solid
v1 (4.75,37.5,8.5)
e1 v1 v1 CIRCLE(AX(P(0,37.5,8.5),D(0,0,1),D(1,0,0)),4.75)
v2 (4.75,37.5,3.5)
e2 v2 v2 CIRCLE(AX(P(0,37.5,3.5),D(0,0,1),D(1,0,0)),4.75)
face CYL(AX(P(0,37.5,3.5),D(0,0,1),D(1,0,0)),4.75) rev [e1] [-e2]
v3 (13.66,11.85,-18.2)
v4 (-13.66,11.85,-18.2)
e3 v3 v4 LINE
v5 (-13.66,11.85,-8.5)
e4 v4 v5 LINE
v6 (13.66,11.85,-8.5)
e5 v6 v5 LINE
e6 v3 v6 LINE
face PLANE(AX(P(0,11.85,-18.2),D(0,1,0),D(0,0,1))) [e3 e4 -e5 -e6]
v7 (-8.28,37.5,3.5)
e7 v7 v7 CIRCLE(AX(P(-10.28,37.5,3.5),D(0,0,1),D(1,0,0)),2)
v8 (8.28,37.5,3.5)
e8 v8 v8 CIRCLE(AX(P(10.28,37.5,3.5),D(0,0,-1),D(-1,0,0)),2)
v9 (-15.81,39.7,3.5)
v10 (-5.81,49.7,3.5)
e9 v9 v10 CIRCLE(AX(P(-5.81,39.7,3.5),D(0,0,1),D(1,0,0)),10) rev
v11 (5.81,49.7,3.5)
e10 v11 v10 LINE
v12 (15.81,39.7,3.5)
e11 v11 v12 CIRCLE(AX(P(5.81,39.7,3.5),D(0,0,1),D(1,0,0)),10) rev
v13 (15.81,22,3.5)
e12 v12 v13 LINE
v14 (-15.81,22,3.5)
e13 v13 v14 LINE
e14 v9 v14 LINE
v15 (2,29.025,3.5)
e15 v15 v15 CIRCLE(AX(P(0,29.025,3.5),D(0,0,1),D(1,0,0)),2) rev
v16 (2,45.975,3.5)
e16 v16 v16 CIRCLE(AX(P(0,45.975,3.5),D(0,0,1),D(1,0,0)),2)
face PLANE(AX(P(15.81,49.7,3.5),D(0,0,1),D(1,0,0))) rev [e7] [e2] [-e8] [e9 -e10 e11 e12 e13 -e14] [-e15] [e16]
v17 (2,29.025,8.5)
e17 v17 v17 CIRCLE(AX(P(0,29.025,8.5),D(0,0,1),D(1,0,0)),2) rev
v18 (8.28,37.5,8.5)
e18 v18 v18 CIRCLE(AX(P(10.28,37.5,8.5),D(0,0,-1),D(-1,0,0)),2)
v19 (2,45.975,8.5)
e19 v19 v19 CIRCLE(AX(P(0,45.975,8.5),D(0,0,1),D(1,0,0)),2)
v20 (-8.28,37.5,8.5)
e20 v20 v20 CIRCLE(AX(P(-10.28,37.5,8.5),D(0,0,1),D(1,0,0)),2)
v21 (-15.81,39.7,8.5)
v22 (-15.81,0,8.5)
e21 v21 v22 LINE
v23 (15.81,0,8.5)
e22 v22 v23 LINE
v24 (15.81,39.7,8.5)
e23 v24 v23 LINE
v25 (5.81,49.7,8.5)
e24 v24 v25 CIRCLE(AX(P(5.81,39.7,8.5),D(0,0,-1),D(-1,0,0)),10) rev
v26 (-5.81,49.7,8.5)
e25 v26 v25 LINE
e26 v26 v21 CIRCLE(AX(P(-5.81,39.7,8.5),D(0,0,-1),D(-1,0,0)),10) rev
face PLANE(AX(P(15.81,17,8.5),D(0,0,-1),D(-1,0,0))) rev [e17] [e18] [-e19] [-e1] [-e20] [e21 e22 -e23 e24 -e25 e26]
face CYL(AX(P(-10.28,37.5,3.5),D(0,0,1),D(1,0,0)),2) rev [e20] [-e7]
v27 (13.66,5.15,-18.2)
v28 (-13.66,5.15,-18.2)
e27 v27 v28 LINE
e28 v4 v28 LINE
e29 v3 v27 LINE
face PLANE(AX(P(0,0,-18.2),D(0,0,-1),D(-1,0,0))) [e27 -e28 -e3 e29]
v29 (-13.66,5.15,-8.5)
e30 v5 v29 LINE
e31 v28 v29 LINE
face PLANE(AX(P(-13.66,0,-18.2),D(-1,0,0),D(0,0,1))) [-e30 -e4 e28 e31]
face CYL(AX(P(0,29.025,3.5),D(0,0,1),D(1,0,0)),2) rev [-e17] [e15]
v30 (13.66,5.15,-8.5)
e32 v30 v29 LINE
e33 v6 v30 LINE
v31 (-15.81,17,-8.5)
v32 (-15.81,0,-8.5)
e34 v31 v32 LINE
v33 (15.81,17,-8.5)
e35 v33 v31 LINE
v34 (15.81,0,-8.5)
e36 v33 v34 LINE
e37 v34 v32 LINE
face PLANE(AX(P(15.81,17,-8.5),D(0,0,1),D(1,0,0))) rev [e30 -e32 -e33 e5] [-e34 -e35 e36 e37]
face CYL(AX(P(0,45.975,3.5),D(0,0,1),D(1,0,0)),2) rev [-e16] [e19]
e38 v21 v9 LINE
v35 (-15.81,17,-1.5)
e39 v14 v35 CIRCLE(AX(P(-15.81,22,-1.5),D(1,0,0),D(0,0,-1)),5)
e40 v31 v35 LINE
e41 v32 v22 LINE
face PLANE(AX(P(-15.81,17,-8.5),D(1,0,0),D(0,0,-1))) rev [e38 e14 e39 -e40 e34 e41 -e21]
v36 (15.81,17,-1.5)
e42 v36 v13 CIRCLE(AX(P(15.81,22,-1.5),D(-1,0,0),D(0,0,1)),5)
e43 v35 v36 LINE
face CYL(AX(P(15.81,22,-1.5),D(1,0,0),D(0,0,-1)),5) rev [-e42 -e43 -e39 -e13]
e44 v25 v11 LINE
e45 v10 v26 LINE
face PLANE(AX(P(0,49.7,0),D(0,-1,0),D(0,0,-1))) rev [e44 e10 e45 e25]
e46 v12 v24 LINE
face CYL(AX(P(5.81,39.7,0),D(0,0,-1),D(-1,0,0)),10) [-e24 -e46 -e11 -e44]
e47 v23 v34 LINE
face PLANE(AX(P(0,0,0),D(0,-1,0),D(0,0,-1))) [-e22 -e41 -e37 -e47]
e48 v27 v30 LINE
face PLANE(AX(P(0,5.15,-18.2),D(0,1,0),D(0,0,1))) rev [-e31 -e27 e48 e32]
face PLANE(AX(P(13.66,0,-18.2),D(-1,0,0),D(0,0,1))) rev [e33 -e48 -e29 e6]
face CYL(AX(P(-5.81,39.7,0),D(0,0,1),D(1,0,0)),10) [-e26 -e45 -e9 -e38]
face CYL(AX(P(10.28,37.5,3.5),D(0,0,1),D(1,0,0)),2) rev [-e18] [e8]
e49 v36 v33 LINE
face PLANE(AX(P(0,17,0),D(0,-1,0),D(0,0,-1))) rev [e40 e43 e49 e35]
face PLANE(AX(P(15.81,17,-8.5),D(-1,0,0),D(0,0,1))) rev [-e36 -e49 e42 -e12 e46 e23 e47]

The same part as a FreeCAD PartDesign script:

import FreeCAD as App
import Part
import Sketcher


def edges_at(feature, points):
    """Names of the edges that pass closest to the given points."""
    edges = feature.Shape.Edges
    near = lambda p: min(range(len(edges)), key=lambda i: edges[i].distToShape(Part.Vertex(*p))[0])
    return sorted({f"Edge{near(p) + 1}" for p in points})


def add_polygon(sketch, points):
    """Adds a closed chain of lines whose ends are joined by coincident constraints."""
    first, n = sketch.GeometryCount, len(points)
    for a, b in zip(points, points[1:] + points[:1]):
        sketch.addGeometry(Part.LineSegment(App.Vector(*a, 0), App.Vector(*b, 0)), False)
    for i in range(n):
        sketch.addConstraint(Sketcher.Constraint("Coincident", first + i, 2, first + (i + 1) % n, 1))

doc = App.newDocument("Part")
body = doc.addObject("PartDesign::Body", "Body")

sketch1 = body.newObject("Sketcher::SketchObject", "Sketch")
sketch1.AttachmentSupport = (doc.getObject("XZ_Plane"), [""])
sketch1.MapMode = "FlatFace"
add_polygon(sketch1, [(-15.81, -8.5), (-15.81, 8.5), (15.81, 8.5), (15.81, -8.5)])
sketch1.addConstraint(Sketcher.Constraint("Vertical", 0))
sketch1.addConstraint(Sketcher.Constraint("Horizontal", 1))
sketch1.addConstraint(Sketcher.Constraint("Vertical", 2))
sketch1.addConstraint(Sketcher.Constraint("Horizontal", 3))
sketch1.addConstraint(Sketcher.Constraint("Symmetric", 0, 2, 2, 2, -1, 1))
sketch1.addConstraint(Sketcher.Constraint("DistanceY", 0, 1, 0, 2, 17.0))
sketch1.addConstraint(Sketcher.Constraint("DistanceX", 1, 1, 1, 2, 31.62))
pad1 = body.newObject("PartDesign::Pad", "Pad")
pad1.Profile = sketch1
pad1.Length = 17
pad1.Reversed = True

sketch2 = body.newObject("Sketcher::SketchObject", "Sketch001")
sketch2.AttachmentSupport = (doc.getObject("XY_Plane"), [""])
sketch2.MapMode = "FlatFace"
sketch2.AttachmentOffset = App.Placement(App.Vector(0, 0, -8.5), App.Rotation())
add_polygon(sketch2, [(13.66, 11.85), (13.66, 5.15), (-13.66, 5.15), (-13.66, 11.85)])
sketch2.addConstraint(Sketcher.Constraint("Vertical", 0))
sketch2.addConstraint(Sketcher.Constraint("Horizontal", 1))
sketch2.addConstraint(Sketcher.Constraint("Vertical", 2))
sketch2.addConstraint(Sketcher.Constraint("Horizontal", 3))
sketch2.addConstraint(Sketcher.Constraint("DistanceY", 0, 2, 0, 1, 6.7))
sketch2.addConstraint(Sketcher.Constraint("DistanceX", 1, 2, 1, 1, 27.32))
sketch2.addConstraint(Sketcher.Constraint("DistanceX", -1, 1, 0, 2, 13.66))
sketch2.addConstraint(Sketcher.Constraint("DistanceY", -1, 1, 0, 2, 5.15))
pad2 = body.newObject("PartDesign::Pad", "Pad001")
pad2.Profile = sketch2
pad2.Length = 9.7
pad2.Reversed = True

sketch3 = body.newObject("Sketcher::SketchObject", "Sketch002")
sketch3.AttachmentSupport = (doc.getObject("XZ_Plane"), [""])
sketch3.MapMode = "FlatFace"
sketch3.AttachmentOffset = App.Placement(App.Vector(0, 0, -17), App.Rotation())
add_polygon(sketch3, [(-15.81, 3.5), (-15.81, 8.5), (15.81, 8.5), (15.81, 3.5)])
sketch3.addConstraint(Sketcher.Constraint("Vertical", 0))
sketch3.addConstraint(Sketcher.Constraint("Horizontal", 1))
sketch3.addConstraint(Sketcher.Constraint("Vertical", 2))
sketch3.addConstraint(Sketcher.Constraint("Horizontal", 3))
sketch3.addConstraint(Sketcher.Constraint("DistanceY", 0, 1, 0, 2, 5.0))
sketch3.addConstraint(Sketcher.Constraint("DistanceX", 1, 1, 1, 2, 31.62))
sketch3.addConstraint(Sketcher.Constraint("DistanceY", -1, 1, 0, 2, 8.5))
sketch3.addConstraint(Sketcher.Constraint("DistanceX", 0, 2, -1, 1, 15.81))
pad3 = body.newObject("PartDesign::Pad", "Pad002")
pad3.Profile = sketch3
pad3.Length = 32.7
pad3.Reversed = True

sketch4 = body.newObject("Sketcher::SketchObject", "Sketch003")
sketch4.AttachmentSupport = (doc.getObject("XY_Plane"), [""])
sketch4.MapMode = "FlatFace"
sketch4.AttachmentOffset = App.Placement(App.Vector(0, 0, 8.5), App.Rotation())
sketch4.addGeometry(Part.Circle(App.Vector(0, 29.025, 0), App.Vector(0, 0, 1), 2), False)
sketch4.addGeometry(Part.Circle(App.Vector(-10.28, 37.5, 0), App.Vector(0, 0, 1), 2), False)
sketch4.addGeometry(Part.Circle(App.Vector(0, 45.975, 0), App.Vector(0, 0, 1), 2), False)
sketch4.addGeometry(Part.Circle(App.Vector(10.28, 37.5, 0), App.Vector(0, 0, 1), 2), False)
sketch4.addGeometry(Part.Circle(App.Vector(0, 37.5, 0), App.Vector(0, 0, 1), 4.75), False)
sketch4.addConstraint(Sketcher.Constraint("Equal", 0, 1))
sketch4.addConstraint(Sketcher.Constraint("Equal", 1, 2))
sketch4.addConstraint(Sketcher.Constraint("Equal", 2, 3))
sketch4.addConstraint(Sketcher.Constraint("Symmetric", 1, 3, 3, 3, -2))
sketch4.addConstraint(Sketcher.Constraint("PointOnObject", 0, 3, -2))
sketch4.addConstraint(Sketcher.Constraint("PointOnObject", 2, 3, -2))
sketch4.addConstraint(Sketcher.Constraint("PointOnObject", 4, 3, -2))
sketch4.addConstraint(Sketcher.Constraint("Horizontal", 3, 3, 4, 3))
sketch4.addConstraint(Sketcher.Constraint("Diameter", 0, 4.0))
sketch4.addConstraint(Sketcher.Constraint("Diameter", 4, 9.5))
sketch4.addConstraint(Sketcher.Constraint("DistanceY", -1, 1, 1, 3, 37.5))
sketch4.addConstraint(Sketcher.Constraint("DistanceX", 1, 3, -1, 1, 10.28))
sketch4.addConstraint(Sketcher.Constraint("DistanceY", 0, 3, 2, 3, 16.95))
sketch4.addConstraint(Sketcher.Constraint("DistanceY", -1, 1, 0, 3, 29.025))
pocket1 = body.newObject("PartDesign::Pocket", "Pocket")
pocket1.Profile = sketch4
pocket1.Length = 5
doc.recompute()

fillet = body.newObject("PartDesign::Fillet", "Fillet")
fillet.Base = (pocket1, edges_at(pocket1, [(15.81, 49.7, 6), (-15.81, 49.7, 6)]))
fillet.Radius = 10
doc.recompute()

fillet2 = body.newObject("PartDesign::Fillet", "Fillet001")
fillet2.Base = (fillet, edges_at(fillet, [(0, 17, 3.5)]))
fillet2.Radius = 5

doc.recompute()
